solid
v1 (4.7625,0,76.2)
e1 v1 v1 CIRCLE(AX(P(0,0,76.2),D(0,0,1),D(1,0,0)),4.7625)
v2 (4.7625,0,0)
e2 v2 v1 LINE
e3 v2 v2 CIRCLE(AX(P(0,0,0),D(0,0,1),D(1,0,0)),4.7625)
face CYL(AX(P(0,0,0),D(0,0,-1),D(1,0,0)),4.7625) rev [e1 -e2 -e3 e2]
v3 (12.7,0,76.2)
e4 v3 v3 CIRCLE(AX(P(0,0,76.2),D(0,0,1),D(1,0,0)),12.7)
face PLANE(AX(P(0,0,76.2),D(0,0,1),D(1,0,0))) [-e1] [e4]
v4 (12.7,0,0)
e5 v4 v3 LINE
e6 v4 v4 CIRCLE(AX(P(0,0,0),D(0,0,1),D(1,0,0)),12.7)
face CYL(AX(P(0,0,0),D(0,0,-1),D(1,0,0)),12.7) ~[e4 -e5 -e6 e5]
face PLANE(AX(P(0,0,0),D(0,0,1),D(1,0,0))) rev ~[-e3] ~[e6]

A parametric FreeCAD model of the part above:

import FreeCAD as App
import Part
import Sketcher
Q = App.Units.Quantity

doc = App.newDocument("Part")
params = doc.addObject("Spreadsheet::Sheet", "Params")
for row, (alias, value) in enumerate([
    ("sketch1_diameter", "1 in"),
    ("sketch1_diameter2", "0.375 in"),
    ("pad1_length", "3 in"),
], start=1):
    params.set(f"A{row}", alias)
    params.set(f"B{row}", "=" + value)
    params.setAlias(f"B{row}", alias)

body = doc.addObject("PartDesign::Body", "Body")

# Sketch on XY plane
sketch1 = body.newObject("Sketcher::SketchObject", "Sketch")
sketch1.AttachmentSupport = (doc.getObject("XY_Plane"), [""])
sketch1.MapMode = "FlatFace"
sketch1.addGeometry([
    Part.Circle(App.Vector(0, 0, 0), App.Vector(0, 0, 1), 12.7),
    Part.Circle(App.Vector(0, 0, 0), App.Vector(0, 0, 1), 4.8),
], False)
sketch1.addConstraint([
    Sketcher.Constraint("Coincident", 0, 3, -1, 1),
    Sketcher.Constraint("Coincident", 1, 3, -1, 1),
    Sketcher.Constraint("Diameter", 0, Q("1 in")),
    Sketcher.Constraint("Diameter", 1, Q("0.375 in")),
])
sketch1.setExpression("Constraints[2]", "Params.sketch1_diameter")
sketch1.setExpression("Constraints[3]", "Params.sketch1_diameter2")
pad1 = body.newObject("PartDesign::Pad", "Pad")
pad1.Profile = sketch1
pad1.setExpression("Length", "Params.pad1_length")

doc.recompute()
